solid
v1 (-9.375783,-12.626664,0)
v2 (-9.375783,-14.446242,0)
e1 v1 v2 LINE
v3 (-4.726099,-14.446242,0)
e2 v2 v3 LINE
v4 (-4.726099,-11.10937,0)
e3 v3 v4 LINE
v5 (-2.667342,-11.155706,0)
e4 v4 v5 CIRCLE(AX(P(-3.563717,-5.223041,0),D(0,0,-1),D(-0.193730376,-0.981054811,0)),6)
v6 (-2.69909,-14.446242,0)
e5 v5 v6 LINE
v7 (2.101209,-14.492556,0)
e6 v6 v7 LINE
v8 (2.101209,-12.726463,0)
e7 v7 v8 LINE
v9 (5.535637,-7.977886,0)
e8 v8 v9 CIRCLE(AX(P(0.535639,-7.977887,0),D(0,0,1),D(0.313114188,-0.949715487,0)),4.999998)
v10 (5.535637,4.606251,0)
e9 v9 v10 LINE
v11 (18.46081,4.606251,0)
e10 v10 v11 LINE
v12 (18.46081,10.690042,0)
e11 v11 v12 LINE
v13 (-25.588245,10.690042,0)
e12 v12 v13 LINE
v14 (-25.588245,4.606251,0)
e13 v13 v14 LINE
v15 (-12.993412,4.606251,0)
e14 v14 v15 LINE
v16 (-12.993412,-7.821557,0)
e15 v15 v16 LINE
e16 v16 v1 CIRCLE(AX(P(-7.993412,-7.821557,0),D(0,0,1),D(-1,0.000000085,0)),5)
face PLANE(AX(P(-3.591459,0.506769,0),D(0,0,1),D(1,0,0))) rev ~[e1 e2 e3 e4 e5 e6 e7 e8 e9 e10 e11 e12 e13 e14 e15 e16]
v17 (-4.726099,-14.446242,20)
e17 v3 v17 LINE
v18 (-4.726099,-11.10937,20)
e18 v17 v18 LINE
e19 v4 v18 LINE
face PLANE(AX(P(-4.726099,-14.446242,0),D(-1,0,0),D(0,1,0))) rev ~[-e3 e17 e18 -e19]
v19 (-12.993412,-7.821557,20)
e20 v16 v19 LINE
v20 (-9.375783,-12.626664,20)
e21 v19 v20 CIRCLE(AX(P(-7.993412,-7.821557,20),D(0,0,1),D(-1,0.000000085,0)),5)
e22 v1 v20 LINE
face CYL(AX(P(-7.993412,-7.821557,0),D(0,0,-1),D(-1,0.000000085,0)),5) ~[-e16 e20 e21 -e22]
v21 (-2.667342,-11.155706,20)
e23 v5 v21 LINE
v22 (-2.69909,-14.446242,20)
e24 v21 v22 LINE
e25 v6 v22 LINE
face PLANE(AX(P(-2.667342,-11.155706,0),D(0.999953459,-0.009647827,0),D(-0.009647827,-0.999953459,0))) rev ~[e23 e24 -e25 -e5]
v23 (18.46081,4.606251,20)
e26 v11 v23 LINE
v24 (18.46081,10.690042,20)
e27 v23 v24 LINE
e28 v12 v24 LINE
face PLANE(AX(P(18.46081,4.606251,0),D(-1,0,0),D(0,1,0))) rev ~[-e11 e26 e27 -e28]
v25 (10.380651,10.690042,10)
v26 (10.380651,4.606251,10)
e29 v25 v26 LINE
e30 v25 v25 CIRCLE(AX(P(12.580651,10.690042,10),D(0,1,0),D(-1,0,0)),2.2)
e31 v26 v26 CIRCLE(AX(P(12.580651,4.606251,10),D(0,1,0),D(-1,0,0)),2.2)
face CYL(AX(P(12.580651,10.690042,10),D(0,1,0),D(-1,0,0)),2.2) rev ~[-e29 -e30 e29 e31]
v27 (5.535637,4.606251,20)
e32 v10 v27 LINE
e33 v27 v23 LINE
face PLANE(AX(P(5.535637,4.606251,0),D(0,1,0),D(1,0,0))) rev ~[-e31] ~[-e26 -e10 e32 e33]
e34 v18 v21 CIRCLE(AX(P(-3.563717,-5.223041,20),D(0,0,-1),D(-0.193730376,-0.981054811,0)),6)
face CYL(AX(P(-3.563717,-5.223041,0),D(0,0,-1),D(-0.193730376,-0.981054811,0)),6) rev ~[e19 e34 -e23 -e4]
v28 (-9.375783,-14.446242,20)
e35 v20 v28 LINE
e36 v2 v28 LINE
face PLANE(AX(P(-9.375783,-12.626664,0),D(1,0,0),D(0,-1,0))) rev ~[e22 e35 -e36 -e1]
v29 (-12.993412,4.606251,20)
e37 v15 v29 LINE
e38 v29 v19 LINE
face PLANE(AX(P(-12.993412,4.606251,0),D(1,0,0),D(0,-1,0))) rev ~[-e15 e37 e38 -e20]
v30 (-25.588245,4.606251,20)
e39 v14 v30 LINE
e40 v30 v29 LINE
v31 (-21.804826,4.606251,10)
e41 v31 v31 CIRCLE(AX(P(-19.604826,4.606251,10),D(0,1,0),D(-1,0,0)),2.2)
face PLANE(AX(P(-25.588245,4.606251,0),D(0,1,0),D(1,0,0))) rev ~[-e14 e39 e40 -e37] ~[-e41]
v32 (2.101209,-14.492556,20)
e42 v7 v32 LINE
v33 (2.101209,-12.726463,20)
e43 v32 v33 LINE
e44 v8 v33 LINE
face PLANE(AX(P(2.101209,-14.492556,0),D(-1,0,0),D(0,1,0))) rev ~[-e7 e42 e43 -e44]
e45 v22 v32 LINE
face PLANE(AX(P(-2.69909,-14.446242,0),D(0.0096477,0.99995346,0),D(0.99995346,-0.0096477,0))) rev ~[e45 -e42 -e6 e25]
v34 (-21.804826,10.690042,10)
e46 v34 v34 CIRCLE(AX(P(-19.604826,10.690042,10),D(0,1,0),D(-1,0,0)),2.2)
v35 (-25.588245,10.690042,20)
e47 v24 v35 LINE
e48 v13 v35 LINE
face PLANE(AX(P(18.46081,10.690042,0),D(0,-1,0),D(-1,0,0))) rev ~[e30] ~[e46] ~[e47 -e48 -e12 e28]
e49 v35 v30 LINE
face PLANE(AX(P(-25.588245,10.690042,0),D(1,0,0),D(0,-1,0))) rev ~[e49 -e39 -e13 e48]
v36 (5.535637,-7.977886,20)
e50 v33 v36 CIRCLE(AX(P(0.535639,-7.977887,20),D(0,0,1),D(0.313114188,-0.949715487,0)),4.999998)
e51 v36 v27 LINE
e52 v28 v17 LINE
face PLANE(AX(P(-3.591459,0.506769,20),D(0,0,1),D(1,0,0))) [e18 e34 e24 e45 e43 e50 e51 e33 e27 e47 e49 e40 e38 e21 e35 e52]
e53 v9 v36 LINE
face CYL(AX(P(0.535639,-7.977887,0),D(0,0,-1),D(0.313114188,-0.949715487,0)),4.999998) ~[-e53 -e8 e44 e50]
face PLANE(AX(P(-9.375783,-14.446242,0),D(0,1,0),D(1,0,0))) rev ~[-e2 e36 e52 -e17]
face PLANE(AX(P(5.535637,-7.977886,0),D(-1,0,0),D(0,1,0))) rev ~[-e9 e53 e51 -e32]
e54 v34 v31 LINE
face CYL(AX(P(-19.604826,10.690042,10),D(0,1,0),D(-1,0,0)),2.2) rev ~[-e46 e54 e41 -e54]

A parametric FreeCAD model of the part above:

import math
import FreeCAD as App
import Part
import Sketcher
from FreeCAD import Vector
Q = App.Units.Quantity

doc = App.newDocument("Part")
params = doc.addObject("Spreadsheet::Sheet", "Params")
for row, (alias, value) in enumerate([
    ("sketch1_radius", "5 mm"),
    ("sketch1_radius2", "6 mm"),
    ("pad1_length", "20 mm"),
    ("sketch2_diameter", "4.4 mm"),
    ("pocket1_length", "25 mm"),
], start=1):
    params.set(f"A{row}", alias)
    params.set(f"B{row}", "=" + value)
    params.setAlias(f"B{row}", alias)

body = doc.addObject("PartDesign::Body", "Body")

# Sketch on XY plane
sketch1 = body.newObject("Sketcher::SketchObject", "Sketch")
sketch1.AttachmentSupport = (doc.getObject("XY_Plane"), [""])
sketch1.MapMode = "FlatFace"
sketch1.addGeometry([
    Part.LineSegment(Vector(18.5, 10.7, 0), Vector(-25.6, 10.7, 0)),  # 0
    Part.LineSegment(Vector(-25.6, 10.7, 0), Vector(-25.6, 4.6, 0)),  # 1
    Part.LineSegment(Vector(-25.6, 4.6, 0), Vector(-13, 4.6, 0)),  # 2
    Part.LineSegment(Vector(-13, 4.6, 0), Vector(-13, -7.8, 0)),  # 3
    Part.ArcOfCircle(Part.Circle(Vector(-8, -7.8, 0), Vector(0, 0, 1), 5), math.radians(180), math.radians(254)),  # 4
    Part.LineSegment(Vector(-9.4, -12.6, 0), Vector(-9.4, -14.4, 0)),  # 5
    Part.LineSegment(Vector(-9.4, -14.4, 0), Vector(-4.7, -14.4, 0)),  # 6
    Part.LineSegment(Vector(-4.7, -14.4, 0), Vector(-4.7, -11.1, 0)),  # 7
    Part.ArcOfCircle(Part.Circle(Vector(-3.6, -5.2, 0), Vector(0, 0, 1), 6), math.radians(-81), math.radians(259)),  # 8
    Part.LineSegment(Vector(-2.7, -11.2, 0), Vector(-2.7, -14.4, 0)),  # 9
    Part.LineSegment(Vector(-2.7, -14.4, 0), Vector(2.1, -14.5, 0)),  # 10
    Part.LineSegment(Vector(2.1, -14.5, 0), Vector(2.1, -12.7, 0)),  # 11
    Part.ArcOfCircle(Part.Circle(Vector(0.5, -8, 0), Vector(0, 0, 1), 5), math.radians(-72), math.radians(0)),  # 12
    Part.LineSegment(Vector(5.5, -8, 0), Vector(5.5, 4.6, 0)),  # 13
    Part.LineSegment(Vector(5.5, 4.6, 0), Vector(18.5, 4.6, 0)),  # 14
    Part.LineSegment(Vector(18.5, 4.6, 0), Vector(18.5, 10.7, 0)),  # 15
], False)
sketch1.addConstraint([
    Sketcher.Constraint("Coincident", 0, 2, 1, 1),
    Sketcher.Constraint("Coincident", 1, 2, 2, 1),
    Sketcher.Constraint("Coincident", 2, 2, 3, 1),
    Sketcher.Constraint("Tangent", 3, 2, 4, 1),
    Sketcher.Constraint("Coincident", 4, 2, 5, 1),
    Sketcher.Constraint("Coincident", 5, 2, 6, 1),
    Sketcher.Constraint("Coincident", 6, 2, 7, 1),
    Sketcher.Constraint("Coincident", 7, 2, 8, 2),
    Sketcher.Constraint("Coincident", 8, 1, 9, 1),
    Sketcher.Constraint("Coincident", 9, 2, 10, 1),
    Sketcher.Constraint("Coincident", 10, 2, 11, 1),
    Sketcher.Constraint("Coincident", 11, 2, 12, 1),
    Sketcher.Constraint("Tangent", 12, 2, 13, 1),
    Sketcher.Constraint("Coincident", 13, 2, 14, 1),
    Sketcher.Constraint("Coincident", 14, 2, 15, 1),
    Sketcher.Constraint("Coincident", 15, 2, 0, 1),
    Sketcher.Constraint("Horizontal", 0),
    Sketcher.Constraint("Vertical", 1),
    Sketcher.Constraint("Horizontal", 2),
    Sketcher.Constraint("Vertical", 3),
    Sketcher.Constraint("Vertical", 5),
    Sketcher.Constraint("Horizontal", 6),
    Sketcher.Constraint("Vertical", 7),
    Sketcher.Constraint("Vertical", 11),
    Sketcher.Constraint("Vertical", 13),
    Sketcher.Constraint("Horizontal", 14),
    Sketcher.Constraint("Vertical", 15),
    Sketcher.Constraint("Equal", 4, 12),
    Sketcher.Constraint("Perpendicular", 9, 10),
    Sketcher.Constraint("Horizontal", 6, 2, 9, 2),
    Sketcher.Constraint("Horizontal", 2, 2, 13, 2),
    Sketcher.Constraint("Radius", 4, Q("5 mm")),
    Sketcher.Constraint("Radius", 8, Q("6 mm")),
    Sketcher.Constraint("DistanceY", 1, 2, 1, 1, Q("6.083791 mm")),
    Sketcher.Constraint("DistanceY", 3, 2, 3, 1, Q("12.427808 mm")),
    Sketcher.Constraint("DistanceY", 7, 1, 7, 2, Q("3.336872 mm")),
    Sketcher.Constraint("DistanceX", 6, 2, -1, 1, Q("4.726099 mm")),
    Sketcher.Constraint("DistanceY", 5, 2, 8, 3, Q("9.223201 mm")),
    Sketcher.Constraint("DistanceX", 9, 2, 10, 2, Q("4.800299 mm")),
    Sketcher.Constraint("DistanceX", 11, 2, 14, 2, Q("16.359601 mm")),
    Sketcher.Constraint("Distance", 9, Q("3.290689 mm")),
    Sketcher.Constraint("DistanceX", 0, 2, 0, 1, Q("44.049055 mm")),
    Sketcher.Constraint("DistanceX", 2, 1, 2, 2, Q("12.594833 mm")),
    Sketcher.Constraint("DistanceX", 6, 1, 6, 2, Q("4.649684 mm")),
    Sketcher.Constraint("DistanceX", 14, 1, 14, 2, Q("12.925173 mm")),
    Sketcher.Constraint("DistanceY", 5, 2, 5, 1, Q("1.819578 mm")),
    Sketcher.Constraint("DistanceY", 11, 1, 11, 2, Q("1.766093 mm")),
    Sketcher.Constraint("DistanceY", 13, 1, 13, 2, Q("12.584137 mm")),
    Sketcher.Constraint("DistanceY", 8, 3, -1, 1, Q("5.223041 mm")),
])
sketch1.setExpression("Constraints[31]", "Params.sketch1_radius")
sketch1.setExpression("Constraints[32]", "Params.sketch1_radius2")
pad1 = body.newObject("PartDesign::Pad", "Pad")
pad1.Profile = sketch1
pad1.setExpression("Length", "Params.pad1_length")

# Sketch on XZ plane
sketch2 = body.newObject("Sketcher::SketchObject", "Sketch001")
sketch2.AttachmentSupport = (doc.getObject("XZ_Plane"), [""])
sketch2.MapMode = "FlatFace"
sketch2.AttachmentOffset = App.Placement(Vector(0, 0, -10.690042), App.Rotation())
sketch2.addGeometry([
    Part.Circle(Vector(12.6, 10, 0), Vector(0, 0, 1), 2.2),
    Part.Circle(Vector(-19.6, 10, 0), Vector(0, 0, 1), 2.2),
], False)
sketch2.addConstraint([
    Sketcher.Constraint("Equal", 0, 1),
    Sketcher.Constraint("Horizontal", 0, 3, 1, 3),
    Sketcher.Constraint("Diameter", 0, Q("4.4 mm")),
    Sketcher.Constraint("DistanceY", -1, 1, 0, 3, Q("10 mm")),
    Sketcher.Constraint("DistanceX", -1, 1, 0, 3, Q("12.580651 mm")),
    Sketcher.Constraint("DistanceX", 1, 3, -1, 1, Q("19.604826 mm")),
])
sketch2.setExpression("Constraints[2]", "Params.sketch2_diameter")
pocket1 = body.newObject("PartDesign::Pocket", "Pocket")
pocket1.Profile = sketch2
pocket1.setExpression("Length", "Params.pocket1_length")
pocket1.Reversed = True

doc.recompute()
